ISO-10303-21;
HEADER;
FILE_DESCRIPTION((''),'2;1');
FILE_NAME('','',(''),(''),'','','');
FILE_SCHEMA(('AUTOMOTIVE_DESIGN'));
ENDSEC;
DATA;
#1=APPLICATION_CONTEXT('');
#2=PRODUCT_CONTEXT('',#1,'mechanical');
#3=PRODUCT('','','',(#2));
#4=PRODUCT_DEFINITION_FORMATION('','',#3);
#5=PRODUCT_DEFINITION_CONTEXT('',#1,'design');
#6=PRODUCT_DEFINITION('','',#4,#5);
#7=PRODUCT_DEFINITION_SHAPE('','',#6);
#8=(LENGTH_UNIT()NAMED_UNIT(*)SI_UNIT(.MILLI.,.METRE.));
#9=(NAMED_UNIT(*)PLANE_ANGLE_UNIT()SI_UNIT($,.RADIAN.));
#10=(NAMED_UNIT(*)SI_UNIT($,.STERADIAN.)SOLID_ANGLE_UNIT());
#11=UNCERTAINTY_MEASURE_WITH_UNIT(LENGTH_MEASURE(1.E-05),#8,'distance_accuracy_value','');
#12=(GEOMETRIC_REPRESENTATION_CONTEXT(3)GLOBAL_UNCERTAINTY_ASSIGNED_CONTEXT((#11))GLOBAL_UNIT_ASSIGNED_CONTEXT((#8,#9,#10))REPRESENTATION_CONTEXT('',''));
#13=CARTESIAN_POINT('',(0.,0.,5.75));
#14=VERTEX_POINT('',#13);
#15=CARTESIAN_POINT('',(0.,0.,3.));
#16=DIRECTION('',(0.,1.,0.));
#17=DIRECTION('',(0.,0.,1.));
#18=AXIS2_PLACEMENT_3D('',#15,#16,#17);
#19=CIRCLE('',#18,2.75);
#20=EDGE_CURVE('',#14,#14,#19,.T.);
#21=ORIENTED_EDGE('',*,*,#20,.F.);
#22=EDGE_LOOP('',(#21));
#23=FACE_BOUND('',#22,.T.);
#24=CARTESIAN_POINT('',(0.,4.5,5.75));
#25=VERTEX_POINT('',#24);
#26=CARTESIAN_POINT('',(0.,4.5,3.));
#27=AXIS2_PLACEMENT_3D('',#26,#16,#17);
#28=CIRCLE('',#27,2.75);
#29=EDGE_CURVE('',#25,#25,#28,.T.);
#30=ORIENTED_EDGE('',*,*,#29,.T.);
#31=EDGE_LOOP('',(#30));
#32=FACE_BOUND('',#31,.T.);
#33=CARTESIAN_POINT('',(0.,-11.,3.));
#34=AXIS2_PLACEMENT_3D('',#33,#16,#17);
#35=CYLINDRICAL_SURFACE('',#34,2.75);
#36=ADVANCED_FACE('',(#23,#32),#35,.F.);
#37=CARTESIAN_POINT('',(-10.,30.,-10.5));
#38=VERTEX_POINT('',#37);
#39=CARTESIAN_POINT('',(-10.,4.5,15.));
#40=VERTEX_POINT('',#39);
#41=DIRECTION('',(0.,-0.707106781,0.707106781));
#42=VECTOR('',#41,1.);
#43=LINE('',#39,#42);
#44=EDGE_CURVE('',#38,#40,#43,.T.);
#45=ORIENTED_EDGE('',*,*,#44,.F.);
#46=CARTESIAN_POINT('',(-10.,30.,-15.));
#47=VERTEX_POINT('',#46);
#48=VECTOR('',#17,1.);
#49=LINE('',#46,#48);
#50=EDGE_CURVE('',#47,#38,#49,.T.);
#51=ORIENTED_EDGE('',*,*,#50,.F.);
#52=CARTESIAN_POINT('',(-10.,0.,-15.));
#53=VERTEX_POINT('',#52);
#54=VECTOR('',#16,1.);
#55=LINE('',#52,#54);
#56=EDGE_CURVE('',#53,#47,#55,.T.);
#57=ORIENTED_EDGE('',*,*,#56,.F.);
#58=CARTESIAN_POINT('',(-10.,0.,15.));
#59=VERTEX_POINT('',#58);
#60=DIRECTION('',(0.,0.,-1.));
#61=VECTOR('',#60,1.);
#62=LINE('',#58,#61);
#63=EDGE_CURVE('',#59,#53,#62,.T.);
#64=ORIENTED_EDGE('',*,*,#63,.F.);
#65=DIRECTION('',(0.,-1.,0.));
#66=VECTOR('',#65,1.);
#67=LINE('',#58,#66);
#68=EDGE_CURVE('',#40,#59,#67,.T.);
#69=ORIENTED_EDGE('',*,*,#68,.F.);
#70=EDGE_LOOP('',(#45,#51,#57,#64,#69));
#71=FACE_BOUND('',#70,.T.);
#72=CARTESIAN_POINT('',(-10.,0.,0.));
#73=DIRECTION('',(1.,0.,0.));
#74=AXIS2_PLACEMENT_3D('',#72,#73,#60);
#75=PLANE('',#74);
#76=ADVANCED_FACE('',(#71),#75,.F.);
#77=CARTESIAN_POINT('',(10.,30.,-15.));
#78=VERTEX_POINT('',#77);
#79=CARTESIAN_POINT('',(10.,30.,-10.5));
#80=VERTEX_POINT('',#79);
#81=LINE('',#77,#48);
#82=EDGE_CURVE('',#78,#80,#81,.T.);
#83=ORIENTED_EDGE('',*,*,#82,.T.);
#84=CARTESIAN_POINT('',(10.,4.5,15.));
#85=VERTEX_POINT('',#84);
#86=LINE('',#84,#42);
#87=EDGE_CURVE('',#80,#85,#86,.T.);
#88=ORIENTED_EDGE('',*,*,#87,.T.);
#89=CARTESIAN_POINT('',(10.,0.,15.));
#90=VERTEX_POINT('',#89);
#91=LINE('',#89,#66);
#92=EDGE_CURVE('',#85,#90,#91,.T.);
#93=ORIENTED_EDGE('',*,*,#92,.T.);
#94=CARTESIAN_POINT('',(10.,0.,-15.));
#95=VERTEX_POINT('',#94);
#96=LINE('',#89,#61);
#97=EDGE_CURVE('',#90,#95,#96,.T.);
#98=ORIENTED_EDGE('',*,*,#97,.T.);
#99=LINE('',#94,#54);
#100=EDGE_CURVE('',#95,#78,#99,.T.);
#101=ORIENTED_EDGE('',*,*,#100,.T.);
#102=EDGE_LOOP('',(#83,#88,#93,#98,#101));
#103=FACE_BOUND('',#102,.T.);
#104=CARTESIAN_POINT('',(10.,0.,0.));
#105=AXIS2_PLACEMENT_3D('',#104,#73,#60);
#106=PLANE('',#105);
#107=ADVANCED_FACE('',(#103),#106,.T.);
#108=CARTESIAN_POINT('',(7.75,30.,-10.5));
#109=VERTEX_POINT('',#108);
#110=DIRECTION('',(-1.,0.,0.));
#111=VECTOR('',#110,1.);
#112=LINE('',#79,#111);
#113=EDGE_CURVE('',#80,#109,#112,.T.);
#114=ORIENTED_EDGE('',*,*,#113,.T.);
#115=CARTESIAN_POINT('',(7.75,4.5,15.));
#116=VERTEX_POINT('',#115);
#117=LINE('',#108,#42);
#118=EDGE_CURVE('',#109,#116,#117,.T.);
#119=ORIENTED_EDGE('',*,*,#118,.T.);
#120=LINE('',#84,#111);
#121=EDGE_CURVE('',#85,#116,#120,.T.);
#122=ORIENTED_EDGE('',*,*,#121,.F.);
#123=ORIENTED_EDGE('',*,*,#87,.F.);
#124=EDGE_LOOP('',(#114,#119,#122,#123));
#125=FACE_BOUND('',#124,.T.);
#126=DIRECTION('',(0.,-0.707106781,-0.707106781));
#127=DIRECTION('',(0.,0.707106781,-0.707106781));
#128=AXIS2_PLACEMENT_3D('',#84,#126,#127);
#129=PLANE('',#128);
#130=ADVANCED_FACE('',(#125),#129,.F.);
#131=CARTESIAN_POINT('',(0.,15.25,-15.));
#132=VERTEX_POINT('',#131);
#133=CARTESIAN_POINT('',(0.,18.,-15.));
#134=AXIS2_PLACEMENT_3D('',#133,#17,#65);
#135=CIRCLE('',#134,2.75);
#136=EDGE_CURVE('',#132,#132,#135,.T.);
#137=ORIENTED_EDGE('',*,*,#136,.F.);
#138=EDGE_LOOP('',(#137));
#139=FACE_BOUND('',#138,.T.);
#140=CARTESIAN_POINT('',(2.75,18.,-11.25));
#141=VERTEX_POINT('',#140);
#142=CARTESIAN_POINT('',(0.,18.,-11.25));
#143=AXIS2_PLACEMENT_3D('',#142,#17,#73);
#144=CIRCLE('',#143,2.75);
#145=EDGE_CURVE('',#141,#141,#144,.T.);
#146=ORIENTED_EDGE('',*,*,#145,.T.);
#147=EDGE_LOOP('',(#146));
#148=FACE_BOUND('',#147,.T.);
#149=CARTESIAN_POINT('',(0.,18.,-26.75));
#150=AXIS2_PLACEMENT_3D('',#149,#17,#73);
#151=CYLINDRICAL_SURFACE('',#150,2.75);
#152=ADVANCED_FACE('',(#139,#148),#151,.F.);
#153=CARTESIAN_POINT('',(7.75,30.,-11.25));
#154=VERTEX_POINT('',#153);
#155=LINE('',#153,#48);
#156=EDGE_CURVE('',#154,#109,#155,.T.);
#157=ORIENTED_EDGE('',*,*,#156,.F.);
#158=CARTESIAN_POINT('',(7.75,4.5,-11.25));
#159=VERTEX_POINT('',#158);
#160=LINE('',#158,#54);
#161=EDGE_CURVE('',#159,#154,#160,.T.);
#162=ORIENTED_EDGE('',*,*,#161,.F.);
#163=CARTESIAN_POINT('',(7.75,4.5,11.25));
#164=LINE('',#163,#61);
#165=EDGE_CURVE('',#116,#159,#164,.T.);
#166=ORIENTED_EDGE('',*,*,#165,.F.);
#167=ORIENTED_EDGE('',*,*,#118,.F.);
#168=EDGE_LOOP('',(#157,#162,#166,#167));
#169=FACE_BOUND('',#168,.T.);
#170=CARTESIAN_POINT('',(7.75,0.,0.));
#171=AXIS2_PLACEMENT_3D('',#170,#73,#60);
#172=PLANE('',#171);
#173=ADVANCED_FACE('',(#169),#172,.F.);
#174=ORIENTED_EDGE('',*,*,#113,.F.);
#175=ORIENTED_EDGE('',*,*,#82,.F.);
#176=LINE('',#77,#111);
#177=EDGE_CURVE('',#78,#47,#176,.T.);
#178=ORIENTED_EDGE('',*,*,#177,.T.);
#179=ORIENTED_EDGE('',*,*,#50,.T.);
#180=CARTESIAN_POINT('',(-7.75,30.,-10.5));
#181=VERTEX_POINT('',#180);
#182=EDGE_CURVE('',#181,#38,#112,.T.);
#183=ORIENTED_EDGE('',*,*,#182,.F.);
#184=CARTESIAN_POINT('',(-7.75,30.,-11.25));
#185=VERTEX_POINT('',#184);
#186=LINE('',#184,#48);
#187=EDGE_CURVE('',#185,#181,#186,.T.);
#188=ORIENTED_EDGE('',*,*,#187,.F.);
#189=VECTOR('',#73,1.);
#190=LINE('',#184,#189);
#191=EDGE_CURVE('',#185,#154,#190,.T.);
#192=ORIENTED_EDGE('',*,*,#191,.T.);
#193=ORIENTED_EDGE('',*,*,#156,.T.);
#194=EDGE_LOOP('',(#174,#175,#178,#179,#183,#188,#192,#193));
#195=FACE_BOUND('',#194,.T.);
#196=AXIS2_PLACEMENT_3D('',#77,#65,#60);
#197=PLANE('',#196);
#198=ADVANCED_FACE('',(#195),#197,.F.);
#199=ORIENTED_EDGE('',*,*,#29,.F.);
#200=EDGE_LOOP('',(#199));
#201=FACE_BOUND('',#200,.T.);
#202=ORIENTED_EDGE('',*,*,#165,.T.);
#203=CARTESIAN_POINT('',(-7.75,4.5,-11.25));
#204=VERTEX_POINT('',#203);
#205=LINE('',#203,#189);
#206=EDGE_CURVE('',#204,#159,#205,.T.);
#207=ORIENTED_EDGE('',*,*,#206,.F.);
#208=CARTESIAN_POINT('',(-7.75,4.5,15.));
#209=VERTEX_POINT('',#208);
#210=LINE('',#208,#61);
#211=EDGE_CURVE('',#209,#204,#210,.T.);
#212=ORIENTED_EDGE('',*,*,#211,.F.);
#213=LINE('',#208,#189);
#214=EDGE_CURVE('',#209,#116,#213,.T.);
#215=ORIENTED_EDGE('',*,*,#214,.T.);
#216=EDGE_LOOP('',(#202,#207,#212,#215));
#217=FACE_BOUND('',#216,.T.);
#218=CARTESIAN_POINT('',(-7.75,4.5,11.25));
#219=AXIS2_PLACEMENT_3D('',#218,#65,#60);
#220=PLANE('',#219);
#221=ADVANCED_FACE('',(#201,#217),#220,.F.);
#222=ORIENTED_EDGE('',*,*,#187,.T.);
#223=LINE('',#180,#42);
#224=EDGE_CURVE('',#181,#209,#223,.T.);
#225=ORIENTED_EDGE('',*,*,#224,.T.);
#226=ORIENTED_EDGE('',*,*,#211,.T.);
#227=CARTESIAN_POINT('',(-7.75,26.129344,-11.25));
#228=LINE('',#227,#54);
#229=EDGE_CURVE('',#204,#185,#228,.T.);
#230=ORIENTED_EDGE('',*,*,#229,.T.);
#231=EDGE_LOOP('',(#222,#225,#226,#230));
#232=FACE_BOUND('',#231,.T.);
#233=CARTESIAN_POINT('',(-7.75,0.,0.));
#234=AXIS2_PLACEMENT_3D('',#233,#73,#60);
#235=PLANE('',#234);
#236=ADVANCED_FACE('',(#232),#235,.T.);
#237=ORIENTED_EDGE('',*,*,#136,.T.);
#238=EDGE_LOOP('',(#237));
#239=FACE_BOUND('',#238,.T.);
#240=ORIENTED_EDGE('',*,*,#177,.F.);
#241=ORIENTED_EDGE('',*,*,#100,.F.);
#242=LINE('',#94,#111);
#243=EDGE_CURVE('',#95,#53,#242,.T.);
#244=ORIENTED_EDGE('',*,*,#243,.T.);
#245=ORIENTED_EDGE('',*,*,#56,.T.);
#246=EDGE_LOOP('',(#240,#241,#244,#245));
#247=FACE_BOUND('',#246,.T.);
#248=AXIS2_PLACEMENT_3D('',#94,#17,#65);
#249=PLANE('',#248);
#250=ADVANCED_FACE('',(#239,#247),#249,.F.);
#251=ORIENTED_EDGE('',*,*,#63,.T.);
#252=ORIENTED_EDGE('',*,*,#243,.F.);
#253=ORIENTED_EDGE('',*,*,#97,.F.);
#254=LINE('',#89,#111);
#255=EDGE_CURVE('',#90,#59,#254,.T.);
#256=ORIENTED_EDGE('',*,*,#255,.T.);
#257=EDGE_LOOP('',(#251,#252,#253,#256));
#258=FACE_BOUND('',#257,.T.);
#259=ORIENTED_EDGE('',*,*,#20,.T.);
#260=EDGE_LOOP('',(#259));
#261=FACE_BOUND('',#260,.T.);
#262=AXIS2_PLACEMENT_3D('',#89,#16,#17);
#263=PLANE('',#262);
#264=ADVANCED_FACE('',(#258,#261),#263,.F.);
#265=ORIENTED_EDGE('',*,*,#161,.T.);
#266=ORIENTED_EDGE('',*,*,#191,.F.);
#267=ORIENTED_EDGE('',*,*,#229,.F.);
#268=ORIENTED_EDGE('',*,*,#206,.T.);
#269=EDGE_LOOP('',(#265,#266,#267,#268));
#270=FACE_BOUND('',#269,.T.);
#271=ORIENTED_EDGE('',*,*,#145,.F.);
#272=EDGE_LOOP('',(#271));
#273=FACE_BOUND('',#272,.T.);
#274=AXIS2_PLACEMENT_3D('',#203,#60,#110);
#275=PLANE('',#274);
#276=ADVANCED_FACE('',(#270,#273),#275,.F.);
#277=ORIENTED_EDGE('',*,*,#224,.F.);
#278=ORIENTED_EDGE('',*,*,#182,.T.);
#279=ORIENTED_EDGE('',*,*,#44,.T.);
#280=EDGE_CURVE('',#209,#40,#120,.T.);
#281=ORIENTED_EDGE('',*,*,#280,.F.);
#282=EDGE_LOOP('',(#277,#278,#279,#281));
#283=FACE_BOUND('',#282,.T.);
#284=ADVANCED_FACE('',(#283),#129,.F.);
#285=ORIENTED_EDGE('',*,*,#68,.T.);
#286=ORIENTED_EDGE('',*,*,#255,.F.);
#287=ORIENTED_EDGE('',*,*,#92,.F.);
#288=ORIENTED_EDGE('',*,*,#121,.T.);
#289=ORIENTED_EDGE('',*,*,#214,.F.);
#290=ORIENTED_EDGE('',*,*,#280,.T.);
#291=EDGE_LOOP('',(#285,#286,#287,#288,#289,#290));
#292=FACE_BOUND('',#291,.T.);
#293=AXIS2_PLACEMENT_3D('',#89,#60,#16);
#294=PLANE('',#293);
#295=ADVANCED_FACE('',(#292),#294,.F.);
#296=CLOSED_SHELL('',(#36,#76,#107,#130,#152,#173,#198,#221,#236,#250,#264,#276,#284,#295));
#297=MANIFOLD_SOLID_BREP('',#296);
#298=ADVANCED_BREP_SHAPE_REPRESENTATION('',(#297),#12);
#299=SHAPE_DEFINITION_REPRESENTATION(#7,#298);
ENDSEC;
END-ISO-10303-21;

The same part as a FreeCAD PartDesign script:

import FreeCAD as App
import Part
import Sketcher

V = App.Vector
Q = App.Units.Quantity


def add_polygon(sketch, points):
    """Adds a closed chain of lines whose ends are joined by coincident constraints."""
    first, n = sketch.GeometryCount, len(points)
    for a, b in zip(points, points[1:] + points[:1]):
        sketch.addGeometry(Part.LineSegment(App.Vector(*a, 0), App.Vector(*b, 0)), False)
    for i in range(n):
        sketch.addConstraint(Sketcher.Constraint("Coincident", first + i, 2, first + (i + 1) % n, 1))

doc = App.newDocument("Part")
body = doc.addObject("PartDesign::Body", "Body")

# Sketch on YZ plane
sketch1 = doc.addObject("Sketcher::SketchObject", "Sketch")
body.addObject(sketch1)
sketch1.AttachmentSupport = (doc.YZ_Plane, [""])
sketch1.MapMode = "FlatFace"
add_polygon(sketch1, [(0, 15), (0, -15), (30, -15), (30, -10.5), (4.5, 15)])  # lines 0-4
sketch1.addConstraint([
    Sketcher.Constraint("Vertical", 0),
    Sketcher.Constraint("Horizontal", 1),
    Sketcher.Constraint("Vertical", 2),
    Sketcher.Constraint("Horizontal", 4),
    Sketcher.Constraint("Symmetric", 0, 2, 4, 2, -1, 1),
    Sketcher.Constraint("Equal", 1, 0),
    Sketcher.Constraint("Equal", 4, 2),
    Sketcher.Constraint("DistanceX", 1, 1, 1, 2, 30.0),
    Sketcher.Constraint("DistanceX", 4, 2, 4, 1, 4.5),
])
pad1 = doc.addObject("PartDesign::Pad", "Pad")
body.addObject(pad1)
pad1.Profile = sketch1
pad1.Length = 20
pad1.Midplane = True

# Sketch on YZ plane
sketch2 = doc.addObject("Sketcher::SketchObject", "Sketch001")
body.addObject(sketch2)
sketch2.AttachmentSupport = (doc.YZ_Plane, [""])
sketch2.MapMode = "FlatFace"
add_polygon(sketch2, [(4.5, -11.25), (30, -11.25), (30, -10.5), (4.5, 15)])  # lines 0-3
sketch2.addConstraint([
    Sketcher.Constraint("Horizontal", 0),
    Sketcher.Constraint("Vertical", 1),
    Sketcher.Constraint("Vertical", 3),
    Sketcher.Constraint("Angle", 2, Q("135 deg")),
    Sketcher.Constraint("DistanceX", 0, 1, 0, 2, 25.5),
    Sketcher.Constraint("DistanceX", -1, 1, 0, 2, 30.0),
    Sketcher.Constraint("DistanceY", -1, 1, 2, 2, 15.0),
    Sketcher.Constraint("DistanceY", 1, 1, 1, 2, 0.75),
])
pocket1 = doc.addObject("PartDesign::Pocket", "Pocket")
body.addObject(pocket1)
pocket1.Profile = sketch2
pocket1.Length = 15.5
pocket1.Midplane = True

# Sketch on XY plane
sketch3 = doc.addObject("Sketcher::SketchObject", "Sketch002")
body.addObject(sketch3)
sketch3.AttachmentSupport = (doc.XY_Plane, [""])
sketch3.MapMode = "FlatFace"
sketch3.AttachmentOffset = App.Placement(V(0, 0, -11.25), App.Rotation())
sketch3.addGeometry(Part.Circle(V(0, 18, 0), V(0, 0, 1), 2.75), False)
sketch3.addConstraint([
    Sketcher.Constraint("PointOnObject", 0, 3, -2),
    Sketcher.Constraint("Diameter", 0, 5.5),
    Sketcher.Constraint("DistanceY", -1, 1, 0, 3, 18.0),
])
pocket2 = doc.addObject("PartDesign::Pocket", "Pocket001")
body.addObject(pocket2)
pocket2.Profile = sketch3
pocket2.Length = 15.5

# Sketch on XZ plane
sketch4 = doc.addObject("Sketcher::SketchObject", "Sketch003")
body.addObject(sketch4)
sketch4.AttachmentSupport = (doc.XZ_Plane, [""])
sketch4.MapMode = "FlatFace"
sketch4.AttachmentOffset = App.Placement(V(0, 0, -4.5), App.Rotation())
sketch4.addGeometry(Part.Circle(V(0, 3, 0), V(0, 0, 1), 2.75), False)
sketch4.addConstraint([
    Sketcher.Constraint("PointOnObject", 0, 3, -2),
    Sketcher.Constraint("Diameter", 0, 5.5),
    Sketcher.Constraint("DistanceY", -1, 1, 0, 3, 3.0),
])
pocket3 = doc.addObject("PartDesign::Pocket", "Pocket002")
body.addObject(pocket3)
pocket3.Profile = sketch4
pocket3.Length = 15.5
pocket3.Reversed = True

doc.recompute()
